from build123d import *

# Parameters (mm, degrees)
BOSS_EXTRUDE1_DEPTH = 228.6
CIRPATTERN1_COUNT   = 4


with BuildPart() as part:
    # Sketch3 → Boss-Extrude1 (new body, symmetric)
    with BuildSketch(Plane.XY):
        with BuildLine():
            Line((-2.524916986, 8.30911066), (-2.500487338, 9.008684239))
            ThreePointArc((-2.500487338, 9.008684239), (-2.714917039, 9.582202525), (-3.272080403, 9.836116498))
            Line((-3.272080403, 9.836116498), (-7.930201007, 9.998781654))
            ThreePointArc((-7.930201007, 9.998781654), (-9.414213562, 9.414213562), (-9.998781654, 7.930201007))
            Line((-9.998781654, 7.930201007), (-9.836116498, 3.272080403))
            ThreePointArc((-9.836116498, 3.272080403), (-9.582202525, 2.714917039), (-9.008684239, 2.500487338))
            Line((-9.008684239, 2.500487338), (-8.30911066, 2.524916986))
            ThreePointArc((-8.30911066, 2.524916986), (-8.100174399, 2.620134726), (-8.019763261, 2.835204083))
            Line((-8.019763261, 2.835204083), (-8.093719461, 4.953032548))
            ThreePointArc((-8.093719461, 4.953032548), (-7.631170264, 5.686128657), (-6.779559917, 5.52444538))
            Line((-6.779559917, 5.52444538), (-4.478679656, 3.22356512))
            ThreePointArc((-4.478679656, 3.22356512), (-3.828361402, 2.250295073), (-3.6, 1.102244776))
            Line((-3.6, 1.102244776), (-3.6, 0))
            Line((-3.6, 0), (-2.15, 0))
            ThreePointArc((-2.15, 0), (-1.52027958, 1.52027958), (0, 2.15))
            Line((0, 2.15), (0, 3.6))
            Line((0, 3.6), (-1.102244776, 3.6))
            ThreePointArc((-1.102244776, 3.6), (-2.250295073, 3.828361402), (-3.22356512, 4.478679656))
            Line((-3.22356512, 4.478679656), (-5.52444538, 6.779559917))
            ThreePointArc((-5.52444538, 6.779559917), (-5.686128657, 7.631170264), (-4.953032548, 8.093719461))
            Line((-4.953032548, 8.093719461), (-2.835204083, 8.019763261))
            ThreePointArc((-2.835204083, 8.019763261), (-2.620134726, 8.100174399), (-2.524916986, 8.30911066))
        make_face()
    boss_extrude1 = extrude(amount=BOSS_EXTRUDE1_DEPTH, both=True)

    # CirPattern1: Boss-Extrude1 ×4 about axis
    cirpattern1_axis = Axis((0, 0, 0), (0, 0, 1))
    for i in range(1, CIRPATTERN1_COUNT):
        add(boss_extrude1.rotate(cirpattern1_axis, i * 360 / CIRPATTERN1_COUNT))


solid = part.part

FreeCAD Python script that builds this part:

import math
import FreeCAD as App
import Part
import Sketcher
Q = App.Units.Quantity

doc = App.newDocument("Part")
body = doc.addObject("PartDesign::Body", "Body")

# Sketch on XY plane
sketch1 = doc.addObject("Sketcher::SketchObject", "Sketch")
body.addObject(sketch1)
sketch1.AttachmentSupport = (doc.XY_Plane, [""])
sketch1.MapMode = "FlatFace"
sketch1.addGeometry([
    Part.LineSegment(App.Vector(-2.524917, 8.309111, 0), App.Vector(-2.500487, 9.008684, 0)),  # 0
    Part.ArcOfCircle(Part.Circle(App.Vector(-3.3, 9.036604, 0), App.Vector(0, 0, 1), 0.8), math.radians(-2), math.radians(88)),  # 1
    Part.LineSegment(App.Vector(-3.27208, 9.836116, 0), App.Vector(-7.930201, 9.998782, 0)),  # 2
    Part.ArcOfCircle(Part.Circle(App.Vector(-8, 8, 0), App.Vector(0, 0, 1), 2), math.radians(88), math.radians(182)),  # 3
    Part.LineSegment(App.Vector(-9.998782, 7.930201, 0), App.Vector(-9.836116, 3.27208, 0)),  # 4
    Part.ArcOfCircle(Part.Circle(App.Vector(-9.036604, 3.3, 0), App.Vector(0, 0, 1), 0.8), math.radians(-178), math.radians(-88)),  # 5
    Part.LineSegment(App.Vector(-9.008684, 2.500487, 0), App.Vector(-8.309111, 2.524917, 0)),  # 6
    Part.ArcOfCircle(Part.Circle(App.Vector(-8.319581, 2.824734, 0), App.Vector(0, 0, 1), 0.3), math.radians(-88), math.radians(2)),  # 7
    Part.LineSegment(App.Vector(-8.019763, 2.835204, 0), App.Vector(-8.093719, 4.953033, 0)),  # 8
    Part.ArcOfCircle(Part.Circle(App.Vector(-7.324097, 4.979908, 0), App.Vector(0, 0, 1), 0.770092), math.radians(45), math.radians(182)),  # 9
    Part.LineSegment(App.Vector(-6.77956, 5.524445, 0), App.Vector(-4.47868, 3.223565, 0)),  # 10
    Part.ArcOfCircle(Part.Circle(App.Vector(-6.6, 1.102245, 0), App.Vector(0, 0, 1), 3), math.radians(0), math.radians(45)),  # 11
    Part.LineSegment(App.Vector(-3.6, 1.102245, 0), App.Vector(-3.6, 0, 0)),  # 12
    Part.LineSegment(App.Vector(-3.6, 0, 0), App.Vector(-2.15, 0, 0)),  # 13
    Part.ArcOfCircle(Part.Circle(App.Vector(0, 0, 0), App.Vector(0, 0, 1), 2.15), math.radians(90), math.radians(180)),  # 14
    Part.LineSegment(App.Vector(0, 2.15, 0), App.Vector(0, 3.6, 0)),  # 15
    Part.LineSegment(App.Vector(0, 3.6, 0), App.Vector(-1.102245, 3.6, 0)),  # 16
    Part.ArcOfCircle(Part.Circle(App.Vector(-1.102245, 6.6, 0), App.Vector(0, 0, 1), 3), math.radians(-135), math.radians(-90)),  # 17
    Part.LineSegment(App.Vector(-3.223565, 4.47868, 0), App.Vector(-5.524445, 6.77956, 0)),  # 18
    Part.ArcOfCircle(Part.Circle(App.Vector(-4.979908, 7.324097, 0), App.Vector(0, 0, 1), 0.770092), math.radians(88), math.radians(225)),  # 19
    Part.LineSegment(App.Vector(-4.953033, 8.093719, 0), App.Vector(-2.835204, 8.019763, 0)),  # 20
    Part.ArcOfCircle(Part.Circle(App.Vector(-2.824734, 8.319581, 0), App.Vector(0, 0, 1), 0.3), math.radians(-92), math.radians(-2)),  # 21
], False)
sketch1.addConstraint([
    Sketcher.Constraint("Tangent", 0, 2, 1, 1),
    Sketcher.Constraint("Tangent", 1, 2, 2, 1),
    Sketcher.Constraint("Tangent", 2, 2, 3, 1),
    Sketcher.Constraint("Tangent", 3, 2, 4, 1),
    Sketcher.Constraint("Tangent", 4, 2, 5, 1),
    Sketcher.Constraint("Tangent", 5, 2, 6, 1),
    Sketcher.Constraint("Tangent", 6, 2, 7, 1),
    Sketcher.Constraint("Tangent", 7, 2, 8, 1),
    Sketcher.Constraint("Tangent", 8, 2, 9, 2),
    Sketcher.Constraint("Tangent", 9, 1, 10, 1),
    Sketcher.Constraint("Tangent", 10, 2, 11, 2),
    Sketcher.Constraint("Tangent", 11, 1, 12, 1),
    Sketcher.Constraint("Coincident", 12, 2, 13, 1),
    Sketcher.Constraint("Coincident", 13, 2, 14, 2),
    Sketcher.Constraint("Coincident", 14, 1, 15, 1),
    Sketcher.Constraint("Coincident", 15, 2, 16, 1),
    Sketcher.Constraint("Tangent", 16, 2, 17, 2),
    Sketcher.Constraint("Tangent", 17, 1, 18, 1),
    Sketcher.Constraint("Tangent", 18, 2, 19, 2),
    Sketcher.Constraint("Tangent", 19, 1, 20, 1),
    Sketcher.Constraint("Tangent", 20, 2, 21, 1),
    Sketcher.Constraint("Tangent", 21, 2, 0, 1),
    Sketcher.Constraint("Vertical", 12),
    Sketcher.Constraint("Horizontal", 13),
    Sketcher.Constraint("Vertical", 15),
    Sketcher.Constraint("Horizontal", 16),
    Sketcher.Constraint("Coincident", 14, 3, -1, 1),
    Sketcher.Constraint("Equal", 1, 5),
    Sketcher.Constraint("Equal", 11, 17),
    Sketcher.Constraint("Equal", 9, 19),
    Sketcher.Constraint("Equal", 7, 21),
    Sketcher.Constraint("PointOnObject", 12, 2, -1),
    Sketcher.Constraint("PointOnObject", 14, 1, -2),
    Sketcher.Constraint("Perpendicular", 0, 2),
    Sketcher.Constraint("Perpendicular", 4, 6),
    Sketcher.Constraint("Perpendicular", 6, 8),
    Sketcher.Constraint("Parallel", 10, 18),
    Sketcher.Constraint("Parallel", 2, 20),
    Sketcher.Constraint("Equal", 16, 12),
    Sketcher.Constraint("Equal", 13, 15),
    Sketcher.Constraint("Equal", 2, 4),
    Sketcher.Constraint("Equal", 0, 6),
    Sketcher.Constraint("Equal", 10, 18),
    Sketcher.Constraint("Equal", 8, 20),
    Sketcher.Constraint("Radius", 3, 2.0),
    Sketcher.Constraint("Radius", 11, 3.0),
    Sketcher.Constraint("Radius", 1, 0.8),
    Sketcher.Constraint("Radius", 7, 0.3),
    Sketcher.Constraint("Angle", 0, Q("88 deg")),
    Sketcher.Constraint("Angle", 4, Q("-88 deg")),
    Sketcher.Constraint("Radius", 14, 2.15),
    Sketcher.Constraint("DistanceX", 3, 3, -1, 1, 8.0),
    Sketcher.Constraint("Distance", 0, 0.7),
    Sketcher.Constraint("DistanceX", 13, 1, 13, 2, 1.45),
    Sketcher.Constraint("DistanceX", 1, 3, -1, 1, 3.3),
    Sketcher.Constraint("Radius", 9, 0.770092),
    Sketcher.Constraint("DistanceY", 7, 3, 8, 2, 2.128298),
])
pad1 = doc.addObject("PartDesign::Pad", "Pad")
body.addObject(pad1)
pad1.Profile = sketch1
pad1.Length = 457.2
pad1.Midplane = True
doc.recompute()

polarpattern = doc.addObject("PartDesign::PolarPattern", "PolarPattern")
body.addObject(polarpattern)
polarpattern.Originals = [pad1]
polarpattern.Axis = (doc.Z_Axis, [""])
polarpattern.Angle = 360
polarpattern.Occurrences = 4
body.Tip = polarpattern

doc.recompute()
